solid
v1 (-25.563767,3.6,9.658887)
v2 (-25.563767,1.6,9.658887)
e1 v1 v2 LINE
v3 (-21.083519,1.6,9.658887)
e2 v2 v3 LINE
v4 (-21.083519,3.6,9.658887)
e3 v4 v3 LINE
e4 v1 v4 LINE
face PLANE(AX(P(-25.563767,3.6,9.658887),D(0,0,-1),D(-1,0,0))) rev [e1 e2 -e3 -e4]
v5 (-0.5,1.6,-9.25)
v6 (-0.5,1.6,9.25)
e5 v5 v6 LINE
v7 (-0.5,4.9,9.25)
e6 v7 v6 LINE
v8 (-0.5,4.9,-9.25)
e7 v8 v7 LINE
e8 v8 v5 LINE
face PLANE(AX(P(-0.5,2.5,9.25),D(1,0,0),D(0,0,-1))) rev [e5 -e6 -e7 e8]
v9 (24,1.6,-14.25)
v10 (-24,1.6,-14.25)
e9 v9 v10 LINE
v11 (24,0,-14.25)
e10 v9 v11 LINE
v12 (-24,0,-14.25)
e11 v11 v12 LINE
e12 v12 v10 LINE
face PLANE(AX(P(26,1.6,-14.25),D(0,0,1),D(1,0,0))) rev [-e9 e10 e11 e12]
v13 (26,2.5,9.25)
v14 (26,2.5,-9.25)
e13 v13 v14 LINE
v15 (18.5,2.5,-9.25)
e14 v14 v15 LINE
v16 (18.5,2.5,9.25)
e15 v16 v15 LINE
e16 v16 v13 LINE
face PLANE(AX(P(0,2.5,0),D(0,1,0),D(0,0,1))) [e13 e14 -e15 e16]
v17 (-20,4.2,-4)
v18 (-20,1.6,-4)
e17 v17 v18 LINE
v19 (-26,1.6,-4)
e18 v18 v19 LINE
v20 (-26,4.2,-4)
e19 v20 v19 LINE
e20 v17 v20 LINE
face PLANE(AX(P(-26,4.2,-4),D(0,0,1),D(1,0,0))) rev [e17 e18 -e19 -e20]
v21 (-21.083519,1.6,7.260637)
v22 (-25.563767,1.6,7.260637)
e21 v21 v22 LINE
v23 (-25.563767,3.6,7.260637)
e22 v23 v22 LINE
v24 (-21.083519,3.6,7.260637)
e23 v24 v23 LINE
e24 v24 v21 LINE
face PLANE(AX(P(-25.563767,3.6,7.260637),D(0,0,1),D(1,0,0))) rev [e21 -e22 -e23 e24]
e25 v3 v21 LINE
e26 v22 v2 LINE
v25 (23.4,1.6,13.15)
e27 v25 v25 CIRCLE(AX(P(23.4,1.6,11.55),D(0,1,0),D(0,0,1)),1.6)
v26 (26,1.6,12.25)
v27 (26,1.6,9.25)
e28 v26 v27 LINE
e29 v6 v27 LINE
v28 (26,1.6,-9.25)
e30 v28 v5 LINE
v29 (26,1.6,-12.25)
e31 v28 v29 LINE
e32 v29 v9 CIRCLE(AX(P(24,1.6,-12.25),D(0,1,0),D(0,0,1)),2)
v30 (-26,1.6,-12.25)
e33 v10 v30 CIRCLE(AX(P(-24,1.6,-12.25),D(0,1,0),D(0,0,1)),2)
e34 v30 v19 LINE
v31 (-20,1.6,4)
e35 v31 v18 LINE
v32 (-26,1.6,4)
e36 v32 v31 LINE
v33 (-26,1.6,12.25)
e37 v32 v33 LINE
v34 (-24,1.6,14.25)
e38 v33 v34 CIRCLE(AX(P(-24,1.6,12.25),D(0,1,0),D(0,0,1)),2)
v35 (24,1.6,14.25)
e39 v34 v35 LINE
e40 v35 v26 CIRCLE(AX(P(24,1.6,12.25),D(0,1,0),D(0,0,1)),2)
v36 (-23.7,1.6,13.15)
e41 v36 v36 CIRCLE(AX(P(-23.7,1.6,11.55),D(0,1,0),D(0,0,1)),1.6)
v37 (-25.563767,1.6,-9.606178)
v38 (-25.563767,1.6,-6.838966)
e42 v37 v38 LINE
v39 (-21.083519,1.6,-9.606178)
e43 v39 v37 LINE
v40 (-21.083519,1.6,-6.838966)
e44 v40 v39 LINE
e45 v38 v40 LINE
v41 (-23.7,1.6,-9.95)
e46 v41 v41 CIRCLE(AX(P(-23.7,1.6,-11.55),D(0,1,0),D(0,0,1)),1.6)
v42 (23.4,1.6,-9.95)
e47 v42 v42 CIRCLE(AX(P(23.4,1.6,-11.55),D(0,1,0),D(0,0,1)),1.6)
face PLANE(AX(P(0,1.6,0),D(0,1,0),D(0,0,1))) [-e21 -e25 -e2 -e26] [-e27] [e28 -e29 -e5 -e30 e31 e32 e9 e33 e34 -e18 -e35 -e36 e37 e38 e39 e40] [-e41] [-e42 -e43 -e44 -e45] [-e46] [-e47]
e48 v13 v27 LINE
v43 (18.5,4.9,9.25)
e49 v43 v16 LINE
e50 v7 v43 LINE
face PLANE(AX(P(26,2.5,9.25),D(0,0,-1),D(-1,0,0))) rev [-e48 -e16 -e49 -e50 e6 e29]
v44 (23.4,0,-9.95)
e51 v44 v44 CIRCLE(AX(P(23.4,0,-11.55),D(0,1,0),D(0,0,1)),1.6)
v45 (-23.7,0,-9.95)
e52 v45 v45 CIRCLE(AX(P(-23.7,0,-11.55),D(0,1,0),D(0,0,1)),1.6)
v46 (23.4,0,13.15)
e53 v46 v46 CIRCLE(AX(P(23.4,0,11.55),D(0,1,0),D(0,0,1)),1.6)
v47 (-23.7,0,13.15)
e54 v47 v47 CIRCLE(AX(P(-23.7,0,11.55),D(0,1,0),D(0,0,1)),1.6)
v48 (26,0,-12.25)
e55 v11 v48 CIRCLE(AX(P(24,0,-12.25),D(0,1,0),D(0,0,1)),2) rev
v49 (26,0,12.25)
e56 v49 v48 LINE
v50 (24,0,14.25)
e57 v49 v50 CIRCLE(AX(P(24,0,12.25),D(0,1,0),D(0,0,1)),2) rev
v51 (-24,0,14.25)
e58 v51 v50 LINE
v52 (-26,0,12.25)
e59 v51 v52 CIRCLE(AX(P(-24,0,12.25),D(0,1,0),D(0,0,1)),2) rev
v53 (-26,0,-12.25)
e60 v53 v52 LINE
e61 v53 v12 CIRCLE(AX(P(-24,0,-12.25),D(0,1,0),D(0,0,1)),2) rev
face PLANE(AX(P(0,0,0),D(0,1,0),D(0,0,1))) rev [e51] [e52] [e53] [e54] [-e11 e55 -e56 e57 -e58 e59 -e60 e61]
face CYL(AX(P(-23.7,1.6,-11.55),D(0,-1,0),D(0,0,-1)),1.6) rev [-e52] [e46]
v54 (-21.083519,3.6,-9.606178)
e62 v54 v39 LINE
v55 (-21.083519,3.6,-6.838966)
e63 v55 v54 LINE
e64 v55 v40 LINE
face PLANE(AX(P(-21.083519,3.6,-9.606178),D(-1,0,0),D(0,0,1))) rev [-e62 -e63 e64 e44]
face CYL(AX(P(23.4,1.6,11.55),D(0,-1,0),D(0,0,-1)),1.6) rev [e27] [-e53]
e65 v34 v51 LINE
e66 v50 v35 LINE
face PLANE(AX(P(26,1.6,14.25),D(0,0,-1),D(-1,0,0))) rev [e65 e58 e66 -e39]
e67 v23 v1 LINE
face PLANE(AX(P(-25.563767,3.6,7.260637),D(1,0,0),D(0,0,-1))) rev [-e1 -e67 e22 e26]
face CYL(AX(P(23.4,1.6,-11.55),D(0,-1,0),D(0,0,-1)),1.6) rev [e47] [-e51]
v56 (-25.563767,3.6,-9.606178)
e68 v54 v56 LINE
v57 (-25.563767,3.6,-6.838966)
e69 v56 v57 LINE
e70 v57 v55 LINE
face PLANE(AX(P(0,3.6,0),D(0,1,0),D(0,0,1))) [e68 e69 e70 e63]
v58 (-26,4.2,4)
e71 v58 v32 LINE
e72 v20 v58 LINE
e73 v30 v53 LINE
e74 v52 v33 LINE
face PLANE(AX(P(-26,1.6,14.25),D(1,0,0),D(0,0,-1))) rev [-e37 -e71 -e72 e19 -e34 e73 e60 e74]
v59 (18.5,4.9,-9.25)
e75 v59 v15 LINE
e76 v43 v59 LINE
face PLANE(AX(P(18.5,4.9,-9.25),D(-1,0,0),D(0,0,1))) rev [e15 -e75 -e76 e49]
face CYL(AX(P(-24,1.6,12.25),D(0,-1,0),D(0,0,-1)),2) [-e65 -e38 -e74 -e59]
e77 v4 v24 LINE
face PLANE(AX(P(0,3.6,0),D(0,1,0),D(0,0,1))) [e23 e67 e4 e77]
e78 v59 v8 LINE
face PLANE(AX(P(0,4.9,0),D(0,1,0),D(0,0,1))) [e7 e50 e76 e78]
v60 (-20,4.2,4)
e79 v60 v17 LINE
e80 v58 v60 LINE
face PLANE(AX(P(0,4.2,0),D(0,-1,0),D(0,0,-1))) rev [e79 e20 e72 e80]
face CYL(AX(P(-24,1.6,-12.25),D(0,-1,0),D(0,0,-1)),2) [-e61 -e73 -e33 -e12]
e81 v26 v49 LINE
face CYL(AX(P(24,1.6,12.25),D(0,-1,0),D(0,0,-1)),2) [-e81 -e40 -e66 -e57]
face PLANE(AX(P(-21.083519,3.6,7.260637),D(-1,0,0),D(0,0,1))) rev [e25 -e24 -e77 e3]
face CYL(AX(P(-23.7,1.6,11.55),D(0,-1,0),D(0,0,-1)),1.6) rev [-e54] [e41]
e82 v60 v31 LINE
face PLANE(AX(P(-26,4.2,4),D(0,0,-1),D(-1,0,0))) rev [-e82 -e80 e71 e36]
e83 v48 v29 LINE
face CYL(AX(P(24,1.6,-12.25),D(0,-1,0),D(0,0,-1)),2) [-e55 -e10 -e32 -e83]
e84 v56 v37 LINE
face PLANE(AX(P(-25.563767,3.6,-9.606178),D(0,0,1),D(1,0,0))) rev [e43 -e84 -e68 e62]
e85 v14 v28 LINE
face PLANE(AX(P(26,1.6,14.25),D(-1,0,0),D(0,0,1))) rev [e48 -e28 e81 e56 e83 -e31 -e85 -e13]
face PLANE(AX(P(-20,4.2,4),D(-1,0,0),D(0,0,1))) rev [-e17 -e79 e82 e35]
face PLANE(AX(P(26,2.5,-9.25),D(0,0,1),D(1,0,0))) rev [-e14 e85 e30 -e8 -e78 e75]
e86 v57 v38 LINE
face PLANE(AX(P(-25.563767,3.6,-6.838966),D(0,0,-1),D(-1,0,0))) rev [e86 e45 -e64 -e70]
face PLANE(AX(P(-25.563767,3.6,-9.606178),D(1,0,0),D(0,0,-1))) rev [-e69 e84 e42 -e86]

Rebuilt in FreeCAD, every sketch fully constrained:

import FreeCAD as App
import Part
import Sketcher


def edges_at(feature, points):
    """Names of the edges that pass closest to the given points."""
    edges = feature.Shape.Edges
    near = lambda p: min(range(len(edges)), key=lambda i: edges[i].distToShape(Part.Vertex(*p))[0])
    return sorted({f"Edge{near(p) + 1}" for p in points})


def add_polygon(sketch, points):
    """Adds a closed chain of lines whose ends are joined by coincident constraints."""
    first, n = sketch.GeometryCount, len(points)
    for a, b in zip(points, points[1:] + points[:1]):
        sketch.addGeometry(Part.LineSegment(App.Vector(*a, 0), App.Vector(*b, 0)), False)
    for i in range(n):
        sketch.addConstraint(Sketcher.Constraint("Coincident", first + i, 2, first + (i + 1) % n, 1))

doc = App.newDocument("Part")
body = doc.addObject("PartDesign::Body", "Body")

# Sketch on XZ plane
sketch1 = body.newObject("Sketcher::SketchObject", "Sketch")
sketch1.AttachmentSupport = (doc.getObject("XZ_Plane"), [""])
sketch1.MapMode = "FlatFace"
add_polygon(sketch1, [(-26, -14.2), (-26, 14.2), (26, 14.2), (26, -14.2)])  # lines 0-3
sketch1.addGeometry(Part.Circle(App.Vector(-23.7, 11.6, 0), App.Vector(0, 0, 1), 1.6), False)  # 4
sketch1.addGeometry(Part.Circle(App.Vector(23.4, 11.6, 0), App.Vector(0, 0, 1), 1.6), False)  # 5
sketch1.addGeometry(Part.Circle(App.Vector(-23.7, -11.6, 0), App.Vector(0, 0, 1), 1.6), False)  # 6
sketch1.addGeometry(Part.Circle(App.Vector(23.4, -11.6, 0), App.Vector(0, 0, 1), 1.6), False)  # 7
sketch1.addConstraint(Sketcher.Constraint("Vertical", 0))
sketch1.addConstraint(Sketcher.Constraint("Horizontal", 1))
sketch1.addConstraint(Sketcher.Constraint("Vertical", 2))
sketch1.addConstraint(Sketcher.Constraint("Horizontal", 3))
sketch1.addConstraint(Sketcher.Constraint("Equal", 4, 5))
sketch1.addConstraint(Sketcher.Constraint("Equal", 5, 6))
sketch1.addConstraint(Sketcher.Constraint("Equal", 6, 7))
sketch1.addConstraint(Sketcher.Constraint("Symmetric", 0, 2, 2, 2, -1, 1))
sketch1.addConstraint(Sketcher.Constraint("Symmetric", 4, 3, 6, 3, -1))
sketch1.addConstraint(Sketcher.Constraint("Symmetric", 5, 3, 7, 3, -1))
sketch1.addConstraint(Sketcher.Constraint("Horizontal", 4, 3, 5, 3))
sketch1.addConstraint(Sketcher.Constraint("Diameter", 4, 3.2))
sketch1.addConstraint(Sketcher.Constraint("DistanceX", 1, 1, 1, 2, 52.0))
sketch1.addConstraint(Sketcher.Constraint("DistanceY", 0, 1, 0, 2, 28.5))
sketch1.addConstraint(Sketcher.Constraint("DistanceX", 4, 3, -1, 1, 23.7))
sketch1.addConstraint(Sketcher.Constraint("DistanceX", -1, 1, 5, 3, 23.4))
sketch1.addConstraint(Sketcher.Constraint("DistanceY", 6, 3, 4, 3, 23.1))
pad1 = body.newObject("PartDesign::Pad", "Pad")
pad1.Profile = sketch1
pad1.Length = 1.6
pad1.Reversed = True
doc.recompute()

fillet = body.newObject("PartDesign::Fillet", "Fillet")
fillet.Base = (pad1, edges_at(pad1, [
    (-26, 0.8, -14.25),
    (26, 0.8, -14.25),
    (26, 0.8, 14.25),
    (-26, 0.8, 14.25),
]))
fillet.Radius = 2

# Sketch on XZ plane
sketch2 = body.newObject("Sketcher::SketchObject", "Sketch001")
sketch2.AttachmentSupport = (doc.getObject("XZ_Plane"), [""])
sketch2.MapMode = "FlatFace"
sketch2.AttachmentOffset = App.Placement(App.Vector(0, 0, -1.6), App.Rotation())
add_polygon(sketch2, [(-26, -4), (-26, 4), (-20, 4), (-20, -4)])  # lines 0-3
sketch2.addConstraint(Sketcher.Constraint("Vertical", 0))
sketch2.addConstraint(Sketcher.Constraint("Horizontal", 1))
sketch2.addConstraint(Sketcher.Constraint("Vertical", 2))
sketch2.addConstraint(Sketcher.Constraint("Horizontal", 3))
sketch2.addConstraint(Sketcher.Constraint("DistanceX", 1, 1, 1, 2, 6.0))
sketch2.addConstraint(Sketcher.Constraint("DistanceY", 0, 1, 0, 2, 8.0))
sketch2.addConstraint(Sketcher.Constraint("DistanceX", 0, 2, -1, 1, 26.0))
sketch2.addConstraint(Sketcher.Constraint("DistanceY", -1, 1, 0, 2, 4.0))
pad2 = body.newObject("PartDesign::Pad", "Pad001")
pad2.Profile = sketch2
pad2.Length = 2.6
pad2.Reversed = True

# Sketch on XZ plane
sketch3 = body.newObject("Sketcher::SketchObject", "Sketch002")
sketch3.AttachmentSupport = (doc.getObject("XZ_Plane"), [""])
sketch3.MapMode = "FlatFace"
sketch3.AttachmentOffset = App.Placement(App.Vector(0, 0, -1.6), App.Rotation())
add_polygon(sketch3, [(0, -9), (0, 9), (26, 9), (26, -9)])  # lines 0-3
sketch3.addConstraint(Sketcher.Constraint("Vertical", 0))
sketch3.addConstraint(Sketcher.Constraint("Horizontal", 1))
sketch3.addConstraint(Sketcher.Constraint("Vertical", 2))
sketch3.addConstraint(Sketcher.Constraint("Horizontal", 3))
sketch3.addConstraint(Sketcher.Constraint("DistanceX", 1, 1, 1, 2, 26.5))
sketch3.addConstraint(Sketcher.Constraint("DistanceY", 0, 1, 0, 2, 18.5))
sketch3.addConstraint(Sketcher.Constraint("DistanceX", -1, 1, 1, 2, 26.0))
sketch3.addConstraint(Sketcher.Constraint("DistanceY", -1, 1, 0, 2, 9.25))
pad3 = body.newObject("PartDesign::Pad", "Pad002")
pad3.Profile = sketch3
pad3.Length = 0.9
pad3.Reversed = True

# Sketch on XZ plane
sketch4 = body.newObject("Sketcher::SketchObject", "Sketch003")
sketch4.AttachmentSupport = (doc.getObject("XZ_Plane"), [""])
sketch4.MapMode = "FlatFace"
sketch4.AttachmentOffset = App.Placement(App.Vector(0, 0, -2.5), App.Rotation())
add_polygon(sketch4, [(0, -9), (0, 9), (18, 9), (18, -9)])  # lines 0-3
sketch4.addConstraint(Sketcher.Constraint("Vertical", 0))
sketch4.addConstraint(Sketcher.Constraint("Horizontal", 1))
sketch4.addConstraint(Sketcher.Constraint("Vertical", 2))
sketch4.addConstraint(Sketcher.Constraint("Horizontal", 3))
sketch4.addConstraint(Sketcher.Constraint("DistanceX", 1, 1, 1, 2, 19.0))
sketch4.addConstraint(Sketcher.Constraint("DistanceY", 0, 1, 0, 2, 18.5))
sketch4.addConstraint(Sketcher.Constraint("DistanceX", 0, 2, -1, 1, 0.5))
sketch4.addConstraint(Sketcher.Constraint("DistanceY", -1, 1, 0, 2, 9.25))
pad4 = body.newObject("PartDesign::Pad", "Pad003")
pad4.Profile = sketch4
pad4.Length = 2.4
pad4.Reversed = True

# Sketch on XZ plane
sketch5 = body.newObject("Sketcher::SketchObject", "Sketch004")
sketch5.AttachmentSupport = (doc.getObject("XZ_Plane"), [""])
sketch5.MapMode = "FlatFace"
sketch5.AttachmentOffset = App.Placement(App.Vector(0, 0, -1.6), App.Rotation())
add_polygon(sketch5, [(-25.6, -9.6), (-25.6, -6.8), (-21.1, -6.8), (-21.1, -9.6)])  # lines 0-3
add_polygon(sketch5, [(-25.6, 7.3), (-25.6, 9.7), (-21.1, 9.7), (-21.1, 7.3)])  # lines 4-7
sketch5.addConstraint(Sketcher.Constraint("Vertical", 0))
sketch5.addConstraint(Sketcher.Constraint("Horizontal", 1))
sketch5.addConstraint(Sketcher.Constraint("Vertical", 2))
sketch5.addConstraint(Sketcher.Constraint("Horizontal", 3))
sketch5.addConstraint(Sketcher.Constraint("Vertical", 4))
sketch5.addConstraint(Sketcher.Constraint("Horizontal", 5))
sketch5.addConstraint(Sketcher.Constraint("Vertical", 6))
sketch5.addConstraint(Sketcher.Constraint("Horizontal", 7))
sketch5.addConstraint(Sketcher.Constraint("Vertical", 3, 2, 4, 2))
sketch5.addConstraint(Sketcher.Constraint("Vertical", 2, 2, 5, 2))
sketch5.addConstraint(Sketcher.Constraint("DistanceY", 0, 1, 0, 2, 2.767212))
sketch5.addConstraint(Sketcher.Constraint("DistanceY", 4, 1, 4, 2, 2.39825))
sketch5.addConstraint(Sketcher.Constraint("DistanceX", 1, 1, 1, 2, 4.480248))
sketch5.addConstraint(Sketcher.Constraint("DistanceX", 1, 2, -1, 1, 21.083519))
sketch5.addConstraint(Sketcher.Constraint("DistanceY", 2, 2, -1, 1, 9.606178))
sketch5.addConstraint(Sketcher.Constraint("DistanceY", -1, 1, 4, 2, 9.658887))
pad5 = body.newObject("PartDesign::Pad", "Pad004")
pad5.Profile = sketch5
pad5.Length = 2
pad5.Reversed = True

doc.recompute()
